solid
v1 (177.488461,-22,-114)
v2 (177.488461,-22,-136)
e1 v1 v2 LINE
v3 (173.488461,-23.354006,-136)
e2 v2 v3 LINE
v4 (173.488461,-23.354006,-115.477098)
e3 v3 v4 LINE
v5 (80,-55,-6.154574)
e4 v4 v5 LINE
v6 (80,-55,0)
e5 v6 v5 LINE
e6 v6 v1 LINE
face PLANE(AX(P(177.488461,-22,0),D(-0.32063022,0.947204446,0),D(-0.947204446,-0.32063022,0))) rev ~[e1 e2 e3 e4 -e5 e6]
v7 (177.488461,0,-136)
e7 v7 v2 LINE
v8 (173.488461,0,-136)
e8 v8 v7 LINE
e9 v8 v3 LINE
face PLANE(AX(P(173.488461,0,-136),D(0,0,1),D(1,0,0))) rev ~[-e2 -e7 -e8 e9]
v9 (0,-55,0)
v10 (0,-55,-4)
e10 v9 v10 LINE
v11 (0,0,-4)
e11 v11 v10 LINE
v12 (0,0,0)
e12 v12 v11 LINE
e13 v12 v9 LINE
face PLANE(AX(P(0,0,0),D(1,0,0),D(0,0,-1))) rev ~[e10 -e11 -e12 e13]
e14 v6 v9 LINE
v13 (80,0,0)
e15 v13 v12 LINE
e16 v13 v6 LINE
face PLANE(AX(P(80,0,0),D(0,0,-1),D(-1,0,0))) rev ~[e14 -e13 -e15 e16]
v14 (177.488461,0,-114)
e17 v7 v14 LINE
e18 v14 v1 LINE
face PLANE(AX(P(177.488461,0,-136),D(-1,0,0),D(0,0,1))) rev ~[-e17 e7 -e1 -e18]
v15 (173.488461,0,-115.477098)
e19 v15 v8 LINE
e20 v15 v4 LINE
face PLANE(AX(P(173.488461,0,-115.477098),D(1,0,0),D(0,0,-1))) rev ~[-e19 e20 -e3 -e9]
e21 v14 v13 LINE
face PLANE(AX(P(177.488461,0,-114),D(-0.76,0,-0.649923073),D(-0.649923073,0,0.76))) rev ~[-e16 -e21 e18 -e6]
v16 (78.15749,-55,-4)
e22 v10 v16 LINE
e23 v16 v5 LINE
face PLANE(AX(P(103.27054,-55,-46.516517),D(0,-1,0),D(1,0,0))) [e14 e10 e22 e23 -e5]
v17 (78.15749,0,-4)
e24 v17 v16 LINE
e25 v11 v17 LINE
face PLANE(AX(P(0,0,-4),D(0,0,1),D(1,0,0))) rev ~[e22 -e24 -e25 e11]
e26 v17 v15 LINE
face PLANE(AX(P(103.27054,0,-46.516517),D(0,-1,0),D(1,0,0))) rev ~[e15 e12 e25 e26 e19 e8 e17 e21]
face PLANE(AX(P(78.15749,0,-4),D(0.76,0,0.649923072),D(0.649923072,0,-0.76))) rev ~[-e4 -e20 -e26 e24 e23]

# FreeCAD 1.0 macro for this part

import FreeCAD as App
import Part
import Sketcher

doc = App.newDocument("Part")
params = doc.addObject("Spreadsheet::Sheet", "Params")
for row, (alias, value) in enumerate([
    ("sketch1_width", "80 mm"),
    ("sketch1_width2", "4 mm"),
    ("sketch1_height", "22 mm"),
    ("sketch1_length", "150 mm"),
    ("pad1_length", "55 mm"),
    ("sketch2_height", "33 mm"),
    ("pocket1_length", "150 mm"),
], start=1):
    params.set(f"A{row}", alias)
    params.set(f"B{row}", "=" + value)
    params.setAlias(f"B{row}", alias)

body = doc.addObject("PartDesign::Body", "Body")

# Sketch on XZ plane
sketch1 = doc.addObject("Sketcher::SketchObject", "Sketch")
body.addObject(sketch1)
sketch1.AttachmentSupport = (doc.XZ_Plane, [""])
sketch1.MapMode = "FlatFace"
sketch1.addGeometry(Part.LineSegment(App.Vector(80, 0, 0), App.Vector(0, 0, 0)), False)
sketch1.addGeometry(Part.LineSegment(App.Vector(0, 0, 0), App.Vector(0, -4, 0)), False)
sketch1.addGeometry(Part.LineSegment(App.Vector(0, -4, 0), App.Vector(78.15749, -4, 0)), False)
sketch1.addGeometry(Part.LineSegment(App.Vector(78.15749, -4, 0), App.Vector(173.488461, -115.477098, 0)), False)
sketch1.addGeometry(Part.LineSegment(App.Vector(173.488461, -115.477098, 0), App.Vector(173.488461, -136, 0)), False)
sketch1.addGeometry(Part.LineSegment(App.Vector(173.488461, -136, 0), App.Vector(177.488461, -136, 0)), False)
sketch1.addGeometry(Part.LineSegment(App.Vector(177.488461, -136, 0), App.Vector(177.488461, -114, 0)), False)
sketch1.addGeometry(Part.LineSegment(App.Vector(177.488461, -114, 0), App.Vector(80, 0, 0)), False)
sketch1.addConstraint(Sketcher.Constraint("Coincident", 0, 2, 1, 1))
sketch1.addConstraint(Sketcher.Constraint("Coincident", 1, 2, 2, 1))
sketch1.addConstraint(Sketcher.Constraint("Coincident", 2, 2, 3, 1))
sketch1.addConstraint(Sketcher.Constraint("Coincident", 3, 2, 4, 1))
sketch1.addConstraint(Sketcher.Constraint("Coincident", 4, 2, 5, 1))
sketch1.addConstraint(Sketcher.Constraint("Coincident", 5, 2, 6, 1))
sketch1.addConstraint(Sketcher.Constraint("Coincident", 6, 2, 7, 1))
sketch1.addConstraint(Sketcher.Constraint("Coincident", 7, 2, 0, 1))
sketch1.addConstraint(Sketcher.Constraint("Horizontal", 0))
sketch1.addConstraint(Sketcher.Constraint("Vertical", 1))
sketch1.addConstraint(Sketcher.Constraint("Horizontal", 2))
sketch1.addConstraint(Sketcher.Constraint("Vertical", 4))
sketch1.addConstraint(Sketcher.Constraint("Horizontal", 5))
sketch1.addConstraint(Sketcher.Constraint("Vertical", 6))
sketch1.addConstraint(Sketcher.Constraint("Coincident", 0, 2, -1, 1))
sketch1.addConstraint(Sketcher.Constraint("Parallel", 3, 7))
sketch1.addConstraint(Sketcher.Constraint("Equal", 5, 1))
sketch1.addConstraint(Sketcher.Constraint("DistanceX", 0, 2, 0, 1, 80.0))
sketch1.addConstraint(Sketcher.Constraint("DistanceX", 5, 1, 5, 2, 4.0))
sketch1.addConstraint(Sketcher.Constraint("DistanceY", 6, 1, 6, 2, 22.0))
sketch1.addConstraint(Sketcher.Constraint("Distance", 7, 150.0))
sketch1.addConstraint(Sketcher.Constraint("DistanceY", 4, 2, -1, 1, 136.0))
sketch1.addConstraint(Sketcher.Constraint("DistanceX", 2, 1, 2, 2, 78.15749))
sketch1.setExpression("Constraints[17]", "Params.sketch1_width")
sketch1.setExpression("Constraints[18]", "Params.sketch1_width2")
sketch1.setExpression("Constraints[19]", "Params.sketch1_height")
sketch1.setExpression("Constraints[20]", "Params.sketch1_length")
pad1 = doc.addObject("PartDesign::Pad", "Pad")
body.addObject(pad1)
pad1.Profile = sketch1
pad1.setExpression("Length", "Params.pad1_length")

# Sketch on XY plane
sketch2 = doc.addObject("Sketcher::SketchObject", "Sketch001")
body.addObject(sketch2)
sketch2.AttachmentSupport = (doc.XY_Plane, [""])
sketch2.MapMode = "FlatFace"
sketch2.addGeometry(Part.LineSegment(App.Vector(177.488461, -22, 0), App.Vector(80, -55, 0)), False)
sketch2.addGeometry(Part.LineSegment(App.Vector(80, -55, 0), App.Vector(177.488461, -55, 0)), False)
sketch2.addGeometry(Part.LineSegment(App.Vector(177.488461, -55, 0), App.Vector(177.488461, -22, 0)), False)
sketch2.addConstraint(Sketcher.Constraint("Coincident", 0, 2, 1, 1))
sketch2.addConstraint(Sketcher.Constraint("Coincident", 1, 2, 2, 1))
sketch2.addConstraint(Sketcher.Constraint("Coincident", 2, 2, 0, 1))
sketch2.addConstraint(Sketcher.Constraint("Horizontal", 1))
sketch2.addConstraint(Sketcher.Constraint("Vertical", 2))
sketch2.addConstraint(Sketcher.Constraint("DistanceY", 2, 1, 2, 2, 33.0))
sketch2.addConstraint(Sketcher.Constraint("DistanceX", -1, 1, 0, 2, 80.0))
sketch2.addConstraint(Sketcher.Constraint("DistanceY", 0, 2, -1, 1, 55.0))
sketch2.addConstraint(Sketcher.Constraint("Distance", 0, 102.922301))
sketch2.setExpression("Constraints[5]", "Params.sketch2_height")
pocket1 = doc.addObject("PartDesign::Pocket", "Pocket")
body.addObject(pocket1)
pocket1.Profile = sketch2
pocket1.setExpression("Length", "Params.pocket1_length")

doc.recompute()
